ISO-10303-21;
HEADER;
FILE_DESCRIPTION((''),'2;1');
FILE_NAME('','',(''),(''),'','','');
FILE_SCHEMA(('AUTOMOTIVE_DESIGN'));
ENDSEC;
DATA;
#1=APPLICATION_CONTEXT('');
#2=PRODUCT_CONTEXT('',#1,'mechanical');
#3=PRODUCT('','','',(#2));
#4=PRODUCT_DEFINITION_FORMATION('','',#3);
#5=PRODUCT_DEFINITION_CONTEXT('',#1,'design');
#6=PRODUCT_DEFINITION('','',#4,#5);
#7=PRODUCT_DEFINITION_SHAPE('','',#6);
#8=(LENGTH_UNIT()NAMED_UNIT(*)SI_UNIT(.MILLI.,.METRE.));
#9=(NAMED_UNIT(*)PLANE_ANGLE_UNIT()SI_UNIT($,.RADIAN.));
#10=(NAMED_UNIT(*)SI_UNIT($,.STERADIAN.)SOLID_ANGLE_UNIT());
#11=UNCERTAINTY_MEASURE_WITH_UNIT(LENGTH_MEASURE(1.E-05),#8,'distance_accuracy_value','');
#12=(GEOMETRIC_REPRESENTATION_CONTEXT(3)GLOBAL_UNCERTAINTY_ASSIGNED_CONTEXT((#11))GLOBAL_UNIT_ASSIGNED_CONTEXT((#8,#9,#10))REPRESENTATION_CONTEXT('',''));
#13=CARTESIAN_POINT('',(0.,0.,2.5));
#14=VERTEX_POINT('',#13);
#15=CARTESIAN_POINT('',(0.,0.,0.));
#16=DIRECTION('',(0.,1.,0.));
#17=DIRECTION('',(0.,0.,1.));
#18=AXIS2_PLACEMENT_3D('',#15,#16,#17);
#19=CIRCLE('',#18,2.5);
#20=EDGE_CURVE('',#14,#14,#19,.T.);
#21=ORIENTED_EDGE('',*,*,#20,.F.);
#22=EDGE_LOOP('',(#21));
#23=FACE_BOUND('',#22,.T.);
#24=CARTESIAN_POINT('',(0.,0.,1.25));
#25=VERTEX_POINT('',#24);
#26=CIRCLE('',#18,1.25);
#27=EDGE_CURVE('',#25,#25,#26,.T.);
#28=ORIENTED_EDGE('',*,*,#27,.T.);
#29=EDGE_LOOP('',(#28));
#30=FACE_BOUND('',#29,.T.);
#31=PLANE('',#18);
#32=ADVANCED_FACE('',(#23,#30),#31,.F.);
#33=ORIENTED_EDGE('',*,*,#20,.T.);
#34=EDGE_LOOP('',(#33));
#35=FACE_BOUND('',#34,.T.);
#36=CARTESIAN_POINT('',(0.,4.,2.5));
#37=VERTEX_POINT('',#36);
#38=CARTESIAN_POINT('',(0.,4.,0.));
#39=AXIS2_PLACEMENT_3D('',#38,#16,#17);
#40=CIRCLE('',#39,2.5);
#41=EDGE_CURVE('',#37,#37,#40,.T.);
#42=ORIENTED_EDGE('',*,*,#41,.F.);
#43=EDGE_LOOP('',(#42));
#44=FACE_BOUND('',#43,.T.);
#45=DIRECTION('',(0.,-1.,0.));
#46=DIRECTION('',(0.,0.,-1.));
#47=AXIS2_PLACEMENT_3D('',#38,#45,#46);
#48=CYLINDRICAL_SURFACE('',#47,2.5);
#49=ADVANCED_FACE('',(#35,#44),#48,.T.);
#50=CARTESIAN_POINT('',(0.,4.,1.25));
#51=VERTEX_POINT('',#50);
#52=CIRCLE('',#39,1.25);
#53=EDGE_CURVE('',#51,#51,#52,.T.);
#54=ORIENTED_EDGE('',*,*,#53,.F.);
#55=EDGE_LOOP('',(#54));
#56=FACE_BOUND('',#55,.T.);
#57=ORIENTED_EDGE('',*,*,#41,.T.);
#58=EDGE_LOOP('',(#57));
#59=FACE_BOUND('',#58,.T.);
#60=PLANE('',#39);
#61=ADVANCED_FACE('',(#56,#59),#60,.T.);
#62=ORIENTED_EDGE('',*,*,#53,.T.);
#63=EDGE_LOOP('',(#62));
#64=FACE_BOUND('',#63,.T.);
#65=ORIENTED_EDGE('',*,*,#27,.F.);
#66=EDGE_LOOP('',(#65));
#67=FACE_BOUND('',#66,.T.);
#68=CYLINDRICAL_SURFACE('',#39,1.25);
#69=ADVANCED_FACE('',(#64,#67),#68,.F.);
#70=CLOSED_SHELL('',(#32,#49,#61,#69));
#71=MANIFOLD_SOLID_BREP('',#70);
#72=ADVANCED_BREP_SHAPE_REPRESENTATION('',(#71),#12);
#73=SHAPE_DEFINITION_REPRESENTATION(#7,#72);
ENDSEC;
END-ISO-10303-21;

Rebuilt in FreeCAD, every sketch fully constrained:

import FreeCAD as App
import Part
import Sketcher

V = App.Vector

doc = App.newDocument("Part")
params = doc.addObject("Spreadsheet::Sheet", "Params")
for row, (alias, value) in enumerate([
    ("sketch1_diameter", "5 mm"),
    ("pad1_length", "4 mm"),
    ("sketch2_diameter", "2.5 mm"),
    ("hole_diameter", "2.5 mm"),
], start=1):
    params.set(f"A{row}", alias)
    params.set(f"B{row}", "=" + value)
    params.setAlias(f"B{row}", alias)

body = doc.addObject("PartDesign::Body", "Body")

# Sketch on XZ plane
sketch1 = body.newObject("Sketcher::SketchObject", "Sketch")
sketch1.AttachmentSupport = (doc.getObject("XZ_Plane"), [""])
sketch1.MapMode = "FlatFace"
sketch1.addGeometry(Part.Circle(V(0, 0, 0), V(0, 0, 1), 2.5), False)
sketch1.addConstraint([
    Sketcher.Constraint("Coincident", 0, 3, -1, 1),
    Sketcher.Constraint("Diameter", 0, 5.0),
])
sketch1.setExpression("Constraints[1]", "Params.sketch1_diameter")
pad1 = body.newObject("PartDesign::Pad", "Pad")
pad1.Profile = sketch1
pad1.setExpression("Length", "Params.pad1_length")
pad1.Reversed = True

# Sketch on XZ plane
sketch2 = body.newObject("Sketcher::SketchObject", "Sketch001")
sketch2.AttachmentSupport = (doc.getObject("XZ_Plane"), [""])
sketch2.MapMode = "FlatFace"
sketch2.AttachmentOffset = App.Placement(V(0, 0, -4), App.Rotation())
sketch2.addGeometry(Part.Circle(V(0, 0, 0), V(0, 0, 1), 1.2), False)
sketch2.addConstraint([
    Sketcher.Constraint("Coincident", 0, 3, -1, 1),
    Sketcher.Constraint("Diameter", 0, 2.5),
])
sketch2.setExpression("Constraints[1]", "Params.sketch2_diameter")
doc.recompute()
hole = body.newObject("PartDesign::Hole", "Hole")
hole.Profile = sketch2
hole.ThreadType = "None"
hole.setExpression("Diameter", "Params.hole_diameter")
hole.DepthType = "ThroughAll"
hole.Reversed = True

doc.recompute()
